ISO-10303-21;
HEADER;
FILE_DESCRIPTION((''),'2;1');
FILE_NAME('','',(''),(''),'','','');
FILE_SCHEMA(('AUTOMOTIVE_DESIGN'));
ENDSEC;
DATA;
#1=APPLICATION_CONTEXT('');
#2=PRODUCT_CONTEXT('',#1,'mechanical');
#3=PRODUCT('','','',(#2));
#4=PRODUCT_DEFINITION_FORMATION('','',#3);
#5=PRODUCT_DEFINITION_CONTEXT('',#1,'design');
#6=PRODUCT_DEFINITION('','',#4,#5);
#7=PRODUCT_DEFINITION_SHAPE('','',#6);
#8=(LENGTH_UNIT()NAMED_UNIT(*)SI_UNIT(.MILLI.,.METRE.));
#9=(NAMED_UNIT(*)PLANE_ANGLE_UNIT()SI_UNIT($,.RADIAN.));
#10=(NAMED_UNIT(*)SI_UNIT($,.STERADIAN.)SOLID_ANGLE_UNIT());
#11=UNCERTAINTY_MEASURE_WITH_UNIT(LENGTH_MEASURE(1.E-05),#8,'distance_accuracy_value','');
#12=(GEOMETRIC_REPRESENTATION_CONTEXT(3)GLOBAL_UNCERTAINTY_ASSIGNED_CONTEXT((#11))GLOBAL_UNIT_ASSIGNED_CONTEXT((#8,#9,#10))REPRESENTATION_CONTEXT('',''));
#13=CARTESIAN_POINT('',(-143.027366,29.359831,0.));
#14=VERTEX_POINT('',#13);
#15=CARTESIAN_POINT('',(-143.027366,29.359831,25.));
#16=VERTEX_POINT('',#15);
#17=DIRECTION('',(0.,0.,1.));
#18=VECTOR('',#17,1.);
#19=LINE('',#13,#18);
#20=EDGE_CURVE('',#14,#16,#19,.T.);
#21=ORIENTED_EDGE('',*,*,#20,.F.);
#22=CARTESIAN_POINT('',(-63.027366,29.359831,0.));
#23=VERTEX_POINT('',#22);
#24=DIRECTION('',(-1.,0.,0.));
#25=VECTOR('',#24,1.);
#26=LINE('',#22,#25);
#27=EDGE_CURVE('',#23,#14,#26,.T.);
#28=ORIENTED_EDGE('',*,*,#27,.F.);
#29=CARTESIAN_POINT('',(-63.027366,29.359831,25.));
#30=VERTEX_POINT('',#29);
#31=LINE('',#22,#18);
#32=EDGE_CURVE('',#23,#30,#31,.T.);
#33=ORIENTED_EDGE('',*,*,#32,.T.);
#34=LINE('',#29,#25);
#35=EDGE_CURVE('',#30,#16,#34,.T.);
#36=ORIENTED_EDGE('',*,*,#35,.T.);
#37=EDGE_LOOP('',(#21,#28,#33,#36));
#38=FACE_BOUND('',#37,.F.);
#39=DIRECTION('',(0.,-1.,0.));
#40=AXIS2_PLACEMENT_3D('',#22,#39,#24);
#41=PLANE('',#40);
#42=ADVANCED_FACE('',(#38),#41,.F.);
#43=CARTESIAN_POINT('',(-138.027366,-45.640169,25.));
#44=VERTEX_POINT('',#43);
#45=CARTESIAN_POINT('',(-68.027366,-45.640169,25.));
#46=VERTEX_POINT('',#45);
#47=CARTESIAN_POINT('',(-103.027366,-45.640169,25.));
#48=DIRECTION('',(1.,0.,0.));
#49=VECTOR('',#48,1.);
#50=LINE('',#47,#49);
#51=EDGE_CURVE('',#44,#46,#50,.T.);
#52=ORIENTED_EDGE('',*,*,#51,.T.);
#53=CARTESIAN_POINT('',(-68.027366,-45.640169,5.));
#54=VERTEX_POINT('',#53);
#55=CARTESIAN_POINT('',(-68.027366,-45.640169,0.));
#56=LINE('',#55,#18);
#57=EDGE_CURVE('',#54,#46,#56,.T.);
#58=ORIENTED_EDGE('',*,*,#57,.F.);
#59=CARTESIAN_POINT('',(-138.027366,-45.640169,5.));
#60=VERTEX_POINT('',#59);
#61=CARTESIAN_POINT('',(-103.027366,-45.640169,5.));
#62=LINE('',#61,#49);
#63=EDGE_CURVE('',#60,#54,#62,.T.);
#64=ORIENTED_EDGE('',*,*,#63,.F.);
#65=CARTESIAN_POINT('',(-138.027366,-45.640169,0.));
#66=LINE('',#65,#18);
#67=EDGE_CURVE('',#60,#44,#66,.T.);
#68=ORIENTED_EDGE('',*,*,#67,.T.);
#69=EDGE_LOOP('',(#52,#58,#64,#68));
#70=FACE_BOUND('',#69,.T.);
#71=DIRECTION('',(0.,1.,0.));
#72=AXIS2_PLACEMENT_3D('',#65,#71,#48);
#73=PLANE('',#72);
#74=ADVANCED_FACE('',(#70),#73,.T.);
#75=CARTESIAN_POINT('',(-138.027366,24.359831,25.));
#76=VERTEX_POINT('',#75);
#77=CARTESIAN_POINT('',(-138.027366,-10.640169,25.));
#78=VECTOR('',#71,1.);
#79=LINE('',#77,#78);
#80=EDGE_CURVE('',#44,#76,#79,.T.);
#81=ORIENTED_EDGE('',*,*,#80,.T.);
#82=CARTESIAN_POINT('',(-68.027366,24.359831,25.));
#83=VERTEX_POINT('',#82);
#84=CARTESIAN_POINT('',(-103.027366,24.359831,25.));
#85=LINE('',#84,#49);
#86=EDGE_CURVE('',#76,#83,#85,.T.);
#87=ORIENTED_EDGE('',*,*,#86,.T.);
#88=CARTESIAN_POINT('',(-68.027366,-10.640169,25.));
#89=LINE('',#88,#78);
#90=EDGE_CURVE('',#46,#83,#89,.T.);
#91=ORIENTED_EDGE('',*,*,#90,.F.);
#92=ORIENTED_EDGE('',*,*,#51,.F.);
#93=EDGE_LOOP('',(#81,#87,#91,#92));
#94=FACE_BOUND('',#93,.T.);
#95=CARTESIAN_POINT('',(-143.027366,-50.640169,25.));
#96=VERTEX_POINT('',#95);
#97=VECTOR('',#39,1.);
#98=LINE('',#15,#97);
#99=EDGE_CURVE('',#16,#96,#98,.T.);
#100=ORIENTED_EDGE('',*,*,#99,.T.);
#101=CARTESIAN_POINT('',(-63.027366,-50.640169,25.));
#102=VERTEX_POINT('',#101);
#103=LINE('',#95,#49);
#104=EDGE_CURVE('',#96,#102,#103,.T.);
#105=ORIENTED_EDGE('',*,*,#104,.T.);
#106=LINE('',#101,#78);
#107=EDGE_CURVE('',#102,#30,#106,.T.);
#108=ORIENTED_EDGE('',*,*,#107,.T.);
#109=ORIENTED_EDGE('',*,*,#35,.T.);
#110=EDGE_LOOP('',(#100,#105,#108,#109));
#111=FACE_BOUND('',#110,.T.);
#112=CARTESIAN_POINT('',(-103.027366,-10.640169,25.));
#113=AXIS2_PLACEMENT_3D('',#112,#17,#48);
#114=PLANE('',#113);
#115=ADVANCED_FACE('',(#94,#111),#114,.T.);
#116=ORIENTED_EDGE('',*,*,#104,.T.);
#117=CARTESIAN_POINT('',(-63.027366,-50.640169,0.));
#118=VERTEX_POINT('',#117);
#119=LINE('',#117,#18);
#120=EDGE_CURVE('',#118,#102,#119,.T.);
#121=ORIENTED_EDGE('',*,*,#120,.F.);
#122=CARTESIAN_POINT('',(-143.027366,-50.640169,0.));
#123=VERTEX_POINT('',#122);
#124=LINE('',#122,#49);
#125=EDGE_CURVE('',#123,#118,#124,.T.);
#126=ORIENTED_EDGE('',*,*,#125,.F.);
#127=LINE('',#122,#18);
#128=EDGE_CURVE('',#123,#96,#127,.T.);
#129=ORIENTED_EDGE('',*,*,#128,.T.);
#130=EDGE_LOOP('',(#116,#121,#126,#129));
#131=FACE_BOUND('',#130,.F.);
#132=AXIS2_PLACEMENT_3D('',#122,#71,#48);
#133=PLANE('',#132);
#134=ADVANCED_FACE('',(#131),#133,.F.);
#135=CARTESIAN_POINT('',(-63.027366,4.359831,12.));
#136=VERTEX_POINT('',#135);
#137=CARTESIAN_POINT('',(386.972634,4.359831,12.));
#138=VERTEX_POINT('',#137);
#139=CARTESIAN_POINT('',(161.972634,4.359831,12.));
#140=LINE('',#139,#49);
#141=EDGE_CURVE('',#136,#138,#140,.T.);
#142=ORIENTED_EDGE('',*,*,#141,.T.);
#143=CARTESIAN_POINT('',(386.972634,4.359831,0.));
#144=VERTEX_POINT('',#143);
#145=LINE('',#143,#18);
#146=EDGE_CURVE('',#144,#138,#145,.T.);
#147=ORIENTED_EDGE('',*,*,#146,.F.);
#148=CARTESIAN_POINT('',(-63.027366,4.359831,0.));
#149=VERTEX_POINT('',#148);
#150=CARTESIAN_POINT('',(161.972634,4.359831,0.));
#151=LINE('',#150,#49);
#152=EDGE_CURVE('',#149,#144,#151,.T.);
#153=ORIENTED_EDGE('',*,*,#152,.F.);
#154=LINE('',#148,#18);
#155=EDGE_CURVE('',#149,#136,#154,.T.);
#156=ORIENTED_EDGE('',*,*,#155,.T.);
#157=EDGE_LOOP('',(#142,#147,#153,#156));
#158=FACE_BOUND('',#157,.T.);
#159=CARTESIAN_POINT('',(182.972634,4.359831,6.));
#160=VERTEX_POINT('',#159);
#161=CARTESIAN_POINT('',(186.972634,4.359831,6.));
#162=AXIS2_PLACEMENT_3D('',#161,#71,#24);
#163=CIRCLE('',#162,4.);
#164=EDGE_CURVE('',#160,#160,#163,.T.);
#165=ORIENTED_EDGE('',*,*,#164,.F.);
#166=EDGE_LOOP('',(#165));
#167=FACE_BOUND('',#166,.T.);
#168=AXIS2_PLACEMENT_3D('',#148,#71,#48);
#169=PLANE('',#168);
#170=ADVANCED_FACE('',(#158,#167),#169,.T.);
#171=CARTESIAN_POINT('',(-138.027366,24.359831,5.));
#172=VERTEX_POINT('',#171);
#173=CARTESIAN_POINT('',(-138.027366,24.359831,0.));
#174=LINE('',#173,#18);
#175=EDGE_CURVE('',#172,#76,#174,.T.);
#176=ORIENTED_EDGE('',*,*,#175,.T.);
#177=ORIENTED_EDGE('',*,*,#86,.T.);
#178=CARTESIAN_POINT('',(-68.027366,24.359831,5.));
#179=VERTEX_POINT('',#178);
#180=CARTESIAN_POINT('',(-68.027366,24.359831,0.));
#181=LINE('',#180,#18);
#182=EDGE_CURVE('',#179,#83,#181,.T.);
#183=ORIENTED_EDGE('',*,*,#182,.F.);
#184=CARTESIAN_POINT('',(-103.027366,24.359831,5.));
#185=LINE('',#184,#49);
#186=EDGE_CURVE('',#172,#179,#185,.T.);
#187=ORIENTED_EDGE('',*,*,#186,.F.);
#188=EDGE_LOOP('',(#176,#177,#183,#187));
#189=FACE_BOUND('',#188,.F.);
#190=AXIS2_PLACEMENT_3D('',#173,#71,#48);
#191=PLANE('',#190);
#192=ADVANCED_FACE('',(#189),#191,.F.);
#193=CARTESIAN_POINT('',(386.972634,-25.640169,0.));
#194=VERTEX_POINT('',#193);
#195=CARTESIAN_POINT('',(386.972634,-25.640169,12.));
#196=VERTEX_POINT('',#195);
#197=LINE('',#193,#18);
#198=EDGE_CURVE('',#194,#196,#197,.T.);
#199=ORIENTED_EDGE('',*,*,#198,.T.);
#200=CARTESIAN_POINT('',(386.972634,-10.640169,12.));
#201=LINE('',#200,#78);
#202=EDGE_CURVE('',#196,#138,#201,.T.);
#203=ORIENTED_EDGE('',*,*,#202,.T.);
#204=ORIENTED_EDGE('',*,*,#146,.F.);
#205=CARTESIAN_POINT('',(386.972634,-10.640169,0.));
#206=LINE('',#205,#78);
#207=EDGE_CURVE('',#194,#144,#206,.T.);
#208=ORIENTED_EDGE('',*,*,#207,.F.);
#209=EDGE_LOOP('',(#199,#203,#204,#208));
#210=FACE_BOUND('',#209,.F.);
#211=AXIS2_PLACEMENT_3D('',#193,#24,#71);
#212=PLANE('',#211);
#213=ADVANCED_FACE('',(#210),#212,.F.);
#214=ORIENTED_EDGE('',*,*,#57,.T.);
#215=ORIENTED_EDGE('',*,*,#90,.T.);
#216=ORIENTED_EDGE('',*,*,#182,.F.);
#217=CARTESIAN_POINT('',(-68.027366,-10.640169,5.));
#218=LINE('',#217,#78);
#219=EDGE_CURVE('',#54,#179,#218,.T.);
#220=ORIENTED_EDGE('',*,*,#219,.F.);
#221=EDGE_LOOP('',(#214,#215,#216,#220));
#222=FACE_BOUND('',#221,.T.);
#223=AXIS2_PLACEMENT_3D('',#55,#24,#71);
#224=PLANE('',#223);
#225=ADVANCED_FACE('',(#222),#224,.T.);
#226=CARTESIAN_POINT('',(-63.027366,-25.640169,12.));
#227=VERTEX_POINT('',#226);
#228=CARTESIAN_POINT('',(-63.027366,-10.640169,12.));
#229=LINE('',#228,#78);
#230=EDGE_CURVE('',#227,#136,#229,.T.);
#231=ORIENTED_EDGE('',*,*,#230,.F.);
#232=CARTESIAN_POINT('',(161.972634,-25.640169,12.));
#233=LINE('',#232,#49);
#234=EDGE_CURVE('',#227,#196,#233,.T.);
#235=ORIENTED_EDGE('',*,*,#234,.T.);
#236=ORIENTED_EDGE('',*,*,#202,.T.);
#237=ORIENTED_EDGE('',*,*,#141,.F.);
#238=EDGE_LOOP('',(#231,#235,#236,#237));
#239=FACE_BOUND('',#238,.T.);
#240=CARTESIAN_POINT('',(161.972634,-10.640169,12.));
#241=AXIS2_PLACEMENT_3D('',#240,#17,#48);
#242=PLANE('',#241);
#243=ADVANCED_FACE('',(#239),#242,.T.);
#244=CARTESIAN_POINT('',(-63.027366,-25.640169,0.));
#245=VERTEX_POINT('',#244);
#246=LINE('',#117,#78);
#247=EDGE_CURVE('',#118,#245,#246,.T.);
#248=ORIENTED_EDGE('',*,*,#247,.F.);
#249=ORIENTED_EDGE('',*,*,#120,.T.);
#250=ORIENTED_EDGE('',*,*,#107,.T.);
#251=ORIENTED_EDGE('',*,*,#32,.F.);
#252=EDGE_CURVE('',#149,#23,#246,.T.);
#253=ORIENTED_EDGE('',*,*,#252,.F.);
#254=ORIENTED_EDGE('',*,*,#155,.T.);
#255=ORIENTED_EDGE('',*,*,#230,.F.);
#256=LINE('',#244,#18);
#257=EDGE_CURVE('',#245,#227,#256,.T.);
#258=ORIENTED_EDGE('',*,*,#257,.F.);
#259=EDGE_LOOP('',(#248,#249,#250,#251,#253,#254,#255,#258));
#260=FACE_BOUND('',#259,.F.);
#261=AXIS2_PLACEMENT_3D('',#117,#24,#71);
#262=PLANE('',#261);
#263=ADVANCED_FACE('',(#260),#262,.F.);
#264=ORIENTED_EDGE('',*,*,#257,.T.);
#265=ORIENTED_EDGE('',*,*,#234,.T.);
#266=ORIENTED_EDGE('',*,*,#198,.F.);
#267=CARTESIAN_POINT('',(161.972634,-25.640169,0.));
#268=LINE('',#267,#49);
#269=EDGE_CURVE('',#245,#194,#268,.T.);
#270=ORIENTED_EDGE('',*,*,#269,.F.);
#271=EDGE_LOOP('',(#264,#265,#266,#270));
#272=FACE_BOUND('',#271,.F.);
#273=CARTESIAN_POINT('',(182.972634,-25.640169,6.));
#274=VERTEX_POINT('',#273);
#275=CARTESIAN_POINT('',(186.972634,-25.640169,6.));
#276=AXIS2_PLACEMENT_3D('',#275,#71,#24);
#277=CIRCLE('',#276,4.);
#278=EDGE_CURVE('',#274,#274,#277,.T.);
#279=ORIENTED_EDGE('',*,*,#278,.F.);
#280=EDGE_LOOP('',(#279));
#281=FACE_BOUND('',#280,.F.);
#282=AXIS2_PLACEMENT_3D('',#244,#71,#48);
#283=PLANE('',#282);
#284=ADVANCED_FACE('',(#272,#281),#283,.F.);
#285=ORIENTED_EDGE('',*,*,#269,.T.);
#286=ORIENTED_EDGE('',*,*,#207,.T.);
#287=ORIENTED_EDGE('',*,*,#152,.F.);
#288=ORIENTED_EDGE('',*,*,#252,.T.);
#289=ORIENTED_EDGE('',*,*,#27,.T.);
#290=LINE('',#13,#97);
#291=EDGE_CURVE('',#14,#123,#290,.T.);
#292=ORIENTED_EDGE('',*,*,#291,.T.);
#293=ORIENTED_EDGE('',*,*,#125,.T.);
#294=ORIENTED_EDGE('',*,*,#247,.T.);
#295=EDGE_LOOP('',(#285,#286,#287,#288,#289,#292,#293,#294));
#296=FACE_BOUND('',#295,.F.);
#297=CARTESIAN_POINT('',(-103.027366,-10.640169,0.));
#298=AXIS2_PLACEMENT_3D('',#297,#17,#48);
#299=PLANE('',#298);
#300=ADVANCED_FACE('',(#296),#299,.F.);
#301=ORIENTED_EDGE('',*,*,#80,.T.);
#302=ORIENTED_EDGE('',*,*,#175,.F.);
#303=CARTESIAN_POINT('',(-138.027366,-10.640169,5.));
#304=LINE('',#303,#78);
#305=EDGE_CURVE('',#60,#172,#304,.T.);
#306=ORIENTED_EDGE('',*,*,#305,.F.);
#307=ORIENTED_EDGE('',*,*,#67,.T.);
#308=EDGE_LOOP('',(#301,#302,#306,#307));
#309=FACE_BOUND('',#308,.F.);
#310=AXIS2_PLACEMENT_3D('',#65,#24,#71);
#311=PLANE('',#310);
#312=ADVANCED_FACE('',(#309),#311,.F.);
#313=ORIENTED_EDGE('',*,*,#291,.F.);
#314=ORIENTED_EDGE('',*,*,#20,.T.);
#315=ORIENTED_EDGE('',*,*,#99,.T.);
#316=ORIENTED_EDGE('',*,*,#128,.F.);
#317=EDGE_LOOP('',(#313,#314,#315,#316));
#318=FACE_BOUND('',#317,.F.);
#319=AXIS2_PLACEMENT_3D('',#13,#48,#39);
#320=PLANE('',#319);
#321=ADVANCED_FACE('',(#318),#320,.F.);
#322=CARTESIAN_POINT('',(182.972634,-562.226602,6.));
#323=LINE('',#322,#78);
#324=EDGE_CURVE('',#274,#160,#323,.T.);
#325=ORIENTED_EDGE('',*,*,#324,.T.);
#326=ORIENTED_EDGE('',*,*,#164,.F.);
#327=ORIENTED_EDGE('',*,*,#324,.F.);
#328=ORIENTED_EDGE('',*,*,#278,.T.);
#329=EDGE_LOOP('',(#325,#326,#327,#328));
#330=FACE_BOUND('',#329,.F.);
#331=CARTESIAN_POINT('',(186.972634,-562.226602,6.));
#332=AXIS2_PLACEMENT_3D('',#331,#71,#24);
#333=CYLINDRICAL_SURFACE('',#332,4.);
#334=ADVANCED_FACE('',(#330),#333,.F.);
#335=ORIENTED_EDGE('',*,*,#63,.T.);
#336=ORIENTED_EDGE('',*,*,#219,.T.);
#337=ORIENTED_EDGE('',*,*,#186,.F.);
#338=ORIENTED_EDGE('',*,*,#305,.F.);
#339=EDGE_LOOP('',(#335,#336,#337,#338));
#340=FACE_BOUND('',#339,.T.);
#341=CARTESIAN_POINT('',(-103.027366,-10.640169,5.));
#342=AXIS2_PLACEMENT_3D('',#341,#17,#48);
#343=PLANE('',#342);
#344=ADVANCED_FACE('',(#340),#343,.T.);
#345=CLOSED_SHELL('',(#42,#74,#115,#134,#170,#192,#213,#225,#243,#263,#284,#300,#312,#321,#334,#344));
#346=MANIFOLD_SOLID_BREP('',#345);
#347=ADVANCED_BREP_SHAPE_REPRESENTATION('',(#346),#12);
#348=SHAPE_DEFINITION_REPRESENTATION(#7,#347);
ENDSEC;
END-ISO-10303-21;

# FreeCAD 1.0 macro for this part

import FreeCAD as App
import Part
import Sketcher
Q = App.Units.Quantity

doc = App.newDocument("Part")
body = doc.addObject("PartDesign::Body", "Body")

sketch1 = body.newObject("Sketcher::SketchObject", "Sketch")
sketch1.AttachmentSupport = (doc.getObject("XY_Plane"), [""])
sketch1.MapMode = "FlatFace"
sketch1.addGeometry(Part.LineSegment(App.Vector(-63, 4, 0), App.Vector(-63, -26, 0)), False)
sketch1.addGeometry(Part.LineSegment(App.Vector(-63, -26, 0), App.Vector(387, -26, 0)), False)
sketch1.addGeometry(Part.LineSegment(App.Vector(387, -26, 0), App.Vector(387, 4, 0)), False)
sketch1.addGeometry(Part.LineSegment(App.Vector(387, 4, 0), App.Vector(-63, 4, 0)), False)
sketch1.addConstraint(Sketcher.Constraint("Coincident", 0, 2, 1, 1))
sketch1.addConstraint(Sketcher.Constraint("Coincident", 1, 2, 2, 1))
sketch1.addConstraint(Sketcher.Constraint("Coincident", 2, 2, 3, 1))
sketch1.addConstraint(Sketcher.Constraint("Coincident", 3, 2, 0, 1))
sketch1.addConstraint(Sketcher.Constraint("Vertical", 0))
sketch1.addConstraint(Sketcher.Constraint("Horizontal", 1))
sketch1.addConstraint(Sketcher.Constraint("Vertical", 2))
sketch1.addConstraint(Sketcher.Constraint("Horizontal", 3))
sketch1.addConstraint(Sketcher.Constraint("DistanceX", 1, 1, 1, 2, Q("450 mm")))
sketch1.addConstraint(Sketcher.Constraint("DistanceY", 0, 2, 0, 1, Q("30 mm")))
sketch1.addConstraint(Sketcher.Constraint("DistanceY", 0, 2, -1, 1, Q("25.640169 mm")))
sketch1.addConstraint(Sketcher.Constraint("DistanceX", 0, 2, -1, 1, Q("63.027366 mm")))
pad1 = body.newObject("PartDesign::Pad", "Pad")
pad1.Profile = sketch1
pad1.Length = 12

sketch2 = body.newObject("Sketcher::SketchObject", "Sketch001")
sketch2.AttachmentSupport = (doc.getObject("XY_Plane"), [""])
sketch2.MapMode = "FlatFace"
sketch2.addGeometry(Part.LineSegment(App.Vector(-63, 29, 0), App.Vector(-143, 29, 0)), False)
sketch2.addGeometry(Part.LineSegment(App.Vector(-143, 29, 0), App.Vector(-143, -51, 0)), False)
sketch2.addGeometry(Part.LineSegment(App.Vector(-143, -51, 0), App.Vector(-63, -51, 0)), False)
sketch2.addGeometry(Part.LineSegment(App.Vector(-63, -51, 0), App.Vector(-63, 29, 0)), False)
sketch2.addGeometry(Part.LineSegment(App.Vector(-68, -46, 0), App.Vector(-138, -46, 0)), False)
sketch2.addGeometry(Part.LineSegment(App.Vector(-138, -46, 0), App.Vector(-138, 24, 0)), False)
sketch2.addGeometry(Part.LineSegment(App.Vector(-138, 24, 0), App.Vector(-68, 24, 0)), False)
sketch2.addGeometry(Part.LineSegment(App.Vector(-68, 24, 0), App.Vector(-68, -46, 0)), False)
sketch2.addConstraint(Sketcher.Constraint("Coincident", 0, 2, 1, 1))
sketch2.addConstraint(Sketcher.Constraint("Coincident", 1, 2, 2, 1))
sketch2.addConstraint(Sketcher.Constraint("Coincident", 2, 2, 3, 1))
sketch2.addConstraint(Sketcher.Constraint("Coincident", 3, 2, 0, 1))
sketch2.addConstraint(Sketcher.Constraint("Coincident", 4, 2, 5, 1))
sketch2.addConstraint(Sketcher.Constraint("Coincident", 5, 2, 6, 1))
sketch2.addConstraint(Sketcher.Constraint("Coincident", 6, 2, 7, 1))
sketch2.addConstraint(Sketcher.Constraint("Coincident", 7, 2, 4, 1))
sketch2.addConstraint(Sketcher.Constraint("Horizontal", 0))
sketch2.addConstraint(Sketcher.Constraint("Vertical", 1))
sketch2.addConstraint(Sketcher.Constraint("Horizontal", 2))
sketch2.addConstraint(Sketcher.Constraint("Vertical", 3))
sketch2.addConstraint(Sketcher.Constraint("Horizontal", 4))
sketch2.addConstraint(Sketcher.Constraint("Vertical", 5))
sketch2.addConstraint(Sketcher.Constraint("Horizontal", 6))
sketch2.addConstraint(Sketcher.Constraint("Vertical", 7))
sketch2.addConstraint(Sketcher.Constraint("Equal", 2, 1))
sketch2.addConstraint(Sketcher.Constraint("Equal", 6, 5))
sketch2.addConstraint(Sketcher.Constraint("DistanceX", 0, 2, 0, 1, Q("80 mm")))
sketch2.addConstraint(Sketcher.Constraint("DistanceX", 4, 2, 4, 1, Q("70 mm")))
sketch2.addConstraint(Sketcher.Constraint("DistanceX", 1, 2, 4, 2, Q("5 mm")))
sketch2.addConstraint(Sketcher.Constraint("DistanceY", 1, 2, 4, 2, Q("5 mm")))
sketch2.addConstraint(Sketcher.Constraint("DistanceY", -1, 1, 0, 2, Q("29.359831 mm")))
sketch2.addConstraint(Sketcher.Constraint("DistanceX", 0, 2, -1, 1, Q("143.027366 mm")))
pad2 = body.newObject("PartDesign::Pad", "Pad001")
pad2.Profile = sketch2
pad2.Length = 25

sketch3 = body.newObject("Sketcher::SketchObject", "Sketch002")
sketch3.AttachmentSupport = (doc.getObject("XY_Plane"), [""])
sketch3.MapMode = "FlatFace"
sketch3.addGeometry(Part.LineSegment(App.Vector(-138, 24, 0), App.Vector(-138, -46, 0)), False)
sketch3.addGeometry(Part.LineSegment(App.Vector(-138, -46, 0), App.Vector(-68, -46, 0)), False)
sketch3.addGeometry(Part.LineSegment(App.Vector(-68, -46, 0), App.Vector(-68, 24, 0)), False)
sketch3.addGeometry(Part.LineSegment(App.Vector(-68, 24, 0), App.Vector(-138, 24, 0)), False)
sketch3.addConstraint(Sketcher.Constraint("Coincident", 0, 2, 1, 1))
sketch3.addConstraint(Sketcher.Constraint("Coincident", 1, 2, 2, 1))
sketch3.addConstraint(Sketcher.Constraint("Coincident", 2, 2, 3, 1))
sketch3.addConstraint(Sketcher.Constraint("Coincident", 3, 2, 0, 1))
sketch3.addConstraint(Sketcher.Constraint("Vertical", 0))
sketch3.addConstraint(Sketcher.Constraint("Horizontal", 1))
sketch3.addConstraint(Sketcher.Constraint("Vertical", 2))
sketch3.addConstraint(Sketcher.Constraint("Horizontal", 3))
sketch3.addConstraint(Sketcher.Constraint("Equal", 3, 0))
sketch3.addConstraint(Sketcher.Constraint("DistanceX", 1, 1, 1, 2, Q("70 mm")))
sketch3.addConstraint(Sketcher.Constraint("DistanceY", 0, 2, -1, 1, Q("45.640169 mm")))
sketch3.addConstraint(Sketcher.Constraint("DistanceX", 0, 2, -1, 1, Q("138.027366 mm")))
pad3 = body.newObject("PartDesign::Pad", "Pad002")
pad3.Profile = sketch3
pad3.Length = 5

sketch4 = body.newObject("Sketcher::SketchObject", "Sketch003")
sketch4.AttachmentSupport = (doc.getObject("XZ_Plane"), [""])
sketch4.MapMode = "FlatFace"
sketch4.AttachmentOffset = App.Placement(App.Vector(0, 0, 25.640169), App.Rotation())
sketch4.addGeometry(Part.Circle(App.Vector(187, 6, 0), App.Vector(0, 0, 1), 4), False)
sketch4.addConstraint(Sketcher.Constraint("Diameter", 0, Q("8 mm")))
sketch4.addConstraint(Sketcher.Constraint("DistanceY", -1, 1, 0, 3, Q("6 mm")))
sketch4.addConstraint(Sketcher.Constraint("DistanceX", -1, 1, 0, 3, Q("186.972634 mm")))
doc.recompute()
hole = body.newObject("PartDesign::Hole", "Hole")
hole.Profile = sketch4
hole.ThreadType = "None"
hole.Diameter = 8
hole.DepthType = "ThroughAll"

doc.recompute()
